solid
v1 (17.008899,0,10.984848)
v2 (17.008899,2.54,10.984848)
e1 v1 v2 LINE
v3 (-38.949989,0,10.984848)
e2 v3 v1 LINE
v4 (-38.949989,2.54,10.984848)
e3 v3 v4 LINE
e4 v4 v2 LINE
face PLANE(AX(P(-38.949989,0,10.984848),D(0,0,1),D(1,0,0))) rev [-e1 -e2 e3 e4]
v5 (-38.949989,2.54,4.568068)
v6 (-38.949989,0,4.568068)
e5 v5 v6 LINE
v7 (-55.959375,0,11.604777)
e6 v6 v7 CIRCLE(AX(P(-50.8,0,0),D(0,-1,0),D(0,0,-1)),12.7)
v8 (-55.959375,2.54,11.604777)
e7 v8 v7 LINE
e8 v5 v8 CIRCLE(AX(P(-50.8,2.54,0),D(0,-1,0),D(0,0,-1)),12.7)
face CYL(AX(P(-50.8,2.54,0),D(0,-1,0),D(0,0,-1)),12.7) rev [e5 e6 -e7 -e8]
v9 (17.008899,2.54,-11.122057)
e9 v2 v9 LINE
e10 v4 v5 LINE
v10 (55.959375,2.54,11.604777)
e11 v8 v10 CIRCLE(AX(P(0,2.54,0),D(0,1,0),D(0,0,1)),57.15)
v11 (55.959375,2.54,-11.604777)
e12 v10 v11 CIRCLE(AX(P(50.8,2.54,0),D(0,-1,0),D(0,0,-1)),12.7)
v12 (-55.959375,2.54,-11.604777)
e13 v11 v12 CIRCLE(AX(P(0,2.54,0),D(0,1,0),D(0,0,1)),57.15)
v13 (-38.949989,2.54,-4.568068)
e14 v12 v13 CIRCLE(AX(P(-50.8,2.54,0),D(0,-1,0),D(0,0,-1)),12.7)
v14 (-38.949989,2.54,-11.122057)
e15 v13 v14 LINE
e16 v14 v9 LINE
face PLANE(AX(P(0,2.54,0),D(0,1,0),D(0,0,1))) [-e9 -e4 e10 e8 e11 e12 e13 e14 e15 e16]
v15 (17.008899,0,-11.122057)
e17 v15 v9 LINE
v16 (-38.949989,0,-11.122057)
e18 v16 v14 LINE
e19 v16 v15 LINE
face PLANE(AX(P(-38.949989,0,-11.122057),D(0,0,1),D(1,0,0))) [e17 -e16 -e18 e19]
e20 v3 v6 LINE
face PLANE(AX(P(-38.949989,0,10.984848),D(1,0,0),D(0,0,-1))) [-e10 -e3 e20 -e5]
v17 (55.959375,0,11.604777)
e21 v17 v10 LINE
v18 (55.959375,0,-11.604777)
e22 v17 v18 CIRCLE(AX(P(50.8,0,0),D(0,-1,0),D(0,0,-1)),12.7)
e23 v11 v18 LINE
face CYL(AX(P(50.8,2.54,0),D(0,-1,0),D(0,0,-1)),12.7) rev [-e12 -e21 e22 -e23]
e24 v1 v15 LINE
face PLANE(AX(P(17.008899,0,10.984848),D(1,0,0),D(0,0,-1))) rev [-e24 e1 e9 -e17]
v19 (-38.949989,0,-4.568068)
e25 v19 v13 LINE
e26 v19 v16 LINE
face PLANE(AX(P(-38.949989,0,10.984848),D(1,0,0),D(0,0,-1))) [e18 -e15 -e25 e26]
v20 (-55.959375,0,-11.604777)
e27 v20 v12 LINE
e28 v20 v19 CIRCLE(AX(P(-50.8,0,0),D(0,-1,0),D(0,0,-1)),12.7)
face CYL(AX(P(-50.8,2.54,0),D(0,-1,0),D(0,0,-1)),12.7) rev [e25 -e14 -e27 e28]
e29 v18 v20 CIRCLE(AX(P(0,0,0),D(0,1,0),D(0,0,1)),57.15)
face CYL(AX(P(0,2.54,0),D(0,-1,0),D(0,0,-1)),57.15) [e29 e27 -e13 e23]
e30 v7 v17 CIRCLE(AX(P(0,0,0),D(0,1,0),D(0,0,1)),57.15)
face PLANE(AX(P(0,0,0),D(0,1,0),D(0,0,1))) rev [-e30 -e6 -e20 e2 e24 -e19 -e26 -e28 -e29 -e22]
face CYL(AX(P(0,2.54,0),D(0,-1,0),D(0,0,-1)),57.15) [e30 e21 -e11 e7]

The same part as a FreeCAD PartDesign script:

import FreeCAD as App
import Part
import Sketcher
Q = App.Units.Quantity

doc = App.newDocument("Part")
body = doc.addObject("PartDesign::Body", "Body")

# Sketch on XZ plane
sketch1 = body.newObject("Sketcher::SketchObject", "Sketch")
sketch1.AttachmentSupport = (doc.getObject("XZ_Plane"), [""])
sketch1.MapMode = "FlatFace"
sketch1.addGeometry(Part.Circle(App.Vector(0, 0, 0), App.Vector(0, 0, 1), 57), False)
sketch1.addConstraint([
    Sketcher.Constraint("Coincident", 0, 3, -1, 1),
    Sketcher.Constraint("Diameter", 0, Q("4.5 in")),
])
pad1 = body.newObject("PartDesign::Pad", "Pad")
pad1.Profile = sketch1
pad1.Length = Q("0.1 in")
pad1.Reversed = True

# Sketch on XZ plane
sketch2 = body.newObject("Sketcher::SketchObject", "Sketch001")
sketch2.AttachmentSupport = (doc.getObject("XZ_Plane"), [""])
sketch2.MapMode = "FlatFace"
sketch2.AttachmentOffset = App.Placement(App.Vector(0, 0, -0.1 * 25.4), App.Rotation())
sketch2.addGeometry([
    Part.LineSegment(App.Vector(-39, -11, 0), App.Vector(-39, 11, 0)),
    Part.LineSegment(App.Vector(-39, 11, 0), App.Vector(17, 11, 0)),
    Part.LineSegment(App.Vector(17, 11, 0), App.Vector(17, -11, 0)),
    Part.LineSegment(App.Vector(17, -11, 0), App.Vector(-39, -11, 0)),
], False)
sketch2.addConstraint([
    Sketcher.Constraint("Coincident", 0, 2, 1, 1),
    Sketcher.Constraint("Coincident", 1, 2, 2, 1),
    Sketcher.Constraint("Coincident", 2, 2, 3, 1),
    Sketcher.Constraint("Coincident", 3, 2, 0, 1),
    Sketcher.Constraint("Vertical", 0),
    Sketcher.Constraint("Horizontal", 1),
    Sketcher.Constraint("Vertical", 2),
    Sketcher.Constraint("Horizontal", 3),
    Sketcher.Constraint("DistanceX", 1, 1, 1, 2, Q("55.958888 mm")),
    Sketcher.Constraint("DistanceX", -1, 1, 1, 2, Q("17.008899 mm")),
    Sketcher.Constraint("DistanceY", 0, 1, 0, 2, Q("22.106905 mm")),
    Sketcher.Constraint("DistanceY", -1, 1, 0, 2, Q("10.984848 mm")),
])
pocket1 = body.newObject("PartDesign::Pocket", "Pocket")
pocket1.Profile = sketch2
pocket1.Length = Q("0.1 in")
pocket1.Reversed = True

# Sketch on XZ plane
sketch3 = body.newObject("Sketcher::SketchObject", "Sketch002")
sketch3.AttachmentSupport = (doc.getObject("XZ_Plane"), [""])
sketch3.MapMode = "FlatFace"
sketch3.addGeometry(Part.Circle(App.Vector(-51, 0, 0), App.Vector(0, 0, 1), 13), False)
sketch3.addConstraint([
    Sketcher.Constraint("PointOnObject", 0, 3, -1),
    Sketcher.Constraint("Diameter", 0, Q("1 in")),
    Sketcher.Constraint("DistanceX", 0, 3, -1, 1, Q("2 in")),
])
pocket2 = body.newObject("PartDesign::Pocket", "Pocket001")
pocket2.Profile = sketch3
pocket2.Length = Q("0.1 in")

# Sketch on XZ plane
sketch4 = body.newObject("Sketcher::SketchObject", "Sketch003")
sketch4.AttachmentSupport = (doc.getObject("XZ_Plane"), [""])
sketch4.MapMode = "FlatFace"
sketch4.addGeometry(Part.Circle(App.Vector(51, 0, 0), App.Vector(0, 0, 1), 13), False)
sketch4.addConstraint([
    Sketcher.Constraint("PointOnObject", 0, 3, -1),
    Sketcher.Constraint("Diameter", 0, Q("1 in")),
    Sketcher.Constraint("DistanceX", -1, 1, 0, 3, Q("2 in")),
])
pocket3 = body.newObject("PartDesign::Pocket", "Pocket002")
pocket3.Profile = sketch4
pocket3.Length = Q("0.1 in")

doc.recompute()
